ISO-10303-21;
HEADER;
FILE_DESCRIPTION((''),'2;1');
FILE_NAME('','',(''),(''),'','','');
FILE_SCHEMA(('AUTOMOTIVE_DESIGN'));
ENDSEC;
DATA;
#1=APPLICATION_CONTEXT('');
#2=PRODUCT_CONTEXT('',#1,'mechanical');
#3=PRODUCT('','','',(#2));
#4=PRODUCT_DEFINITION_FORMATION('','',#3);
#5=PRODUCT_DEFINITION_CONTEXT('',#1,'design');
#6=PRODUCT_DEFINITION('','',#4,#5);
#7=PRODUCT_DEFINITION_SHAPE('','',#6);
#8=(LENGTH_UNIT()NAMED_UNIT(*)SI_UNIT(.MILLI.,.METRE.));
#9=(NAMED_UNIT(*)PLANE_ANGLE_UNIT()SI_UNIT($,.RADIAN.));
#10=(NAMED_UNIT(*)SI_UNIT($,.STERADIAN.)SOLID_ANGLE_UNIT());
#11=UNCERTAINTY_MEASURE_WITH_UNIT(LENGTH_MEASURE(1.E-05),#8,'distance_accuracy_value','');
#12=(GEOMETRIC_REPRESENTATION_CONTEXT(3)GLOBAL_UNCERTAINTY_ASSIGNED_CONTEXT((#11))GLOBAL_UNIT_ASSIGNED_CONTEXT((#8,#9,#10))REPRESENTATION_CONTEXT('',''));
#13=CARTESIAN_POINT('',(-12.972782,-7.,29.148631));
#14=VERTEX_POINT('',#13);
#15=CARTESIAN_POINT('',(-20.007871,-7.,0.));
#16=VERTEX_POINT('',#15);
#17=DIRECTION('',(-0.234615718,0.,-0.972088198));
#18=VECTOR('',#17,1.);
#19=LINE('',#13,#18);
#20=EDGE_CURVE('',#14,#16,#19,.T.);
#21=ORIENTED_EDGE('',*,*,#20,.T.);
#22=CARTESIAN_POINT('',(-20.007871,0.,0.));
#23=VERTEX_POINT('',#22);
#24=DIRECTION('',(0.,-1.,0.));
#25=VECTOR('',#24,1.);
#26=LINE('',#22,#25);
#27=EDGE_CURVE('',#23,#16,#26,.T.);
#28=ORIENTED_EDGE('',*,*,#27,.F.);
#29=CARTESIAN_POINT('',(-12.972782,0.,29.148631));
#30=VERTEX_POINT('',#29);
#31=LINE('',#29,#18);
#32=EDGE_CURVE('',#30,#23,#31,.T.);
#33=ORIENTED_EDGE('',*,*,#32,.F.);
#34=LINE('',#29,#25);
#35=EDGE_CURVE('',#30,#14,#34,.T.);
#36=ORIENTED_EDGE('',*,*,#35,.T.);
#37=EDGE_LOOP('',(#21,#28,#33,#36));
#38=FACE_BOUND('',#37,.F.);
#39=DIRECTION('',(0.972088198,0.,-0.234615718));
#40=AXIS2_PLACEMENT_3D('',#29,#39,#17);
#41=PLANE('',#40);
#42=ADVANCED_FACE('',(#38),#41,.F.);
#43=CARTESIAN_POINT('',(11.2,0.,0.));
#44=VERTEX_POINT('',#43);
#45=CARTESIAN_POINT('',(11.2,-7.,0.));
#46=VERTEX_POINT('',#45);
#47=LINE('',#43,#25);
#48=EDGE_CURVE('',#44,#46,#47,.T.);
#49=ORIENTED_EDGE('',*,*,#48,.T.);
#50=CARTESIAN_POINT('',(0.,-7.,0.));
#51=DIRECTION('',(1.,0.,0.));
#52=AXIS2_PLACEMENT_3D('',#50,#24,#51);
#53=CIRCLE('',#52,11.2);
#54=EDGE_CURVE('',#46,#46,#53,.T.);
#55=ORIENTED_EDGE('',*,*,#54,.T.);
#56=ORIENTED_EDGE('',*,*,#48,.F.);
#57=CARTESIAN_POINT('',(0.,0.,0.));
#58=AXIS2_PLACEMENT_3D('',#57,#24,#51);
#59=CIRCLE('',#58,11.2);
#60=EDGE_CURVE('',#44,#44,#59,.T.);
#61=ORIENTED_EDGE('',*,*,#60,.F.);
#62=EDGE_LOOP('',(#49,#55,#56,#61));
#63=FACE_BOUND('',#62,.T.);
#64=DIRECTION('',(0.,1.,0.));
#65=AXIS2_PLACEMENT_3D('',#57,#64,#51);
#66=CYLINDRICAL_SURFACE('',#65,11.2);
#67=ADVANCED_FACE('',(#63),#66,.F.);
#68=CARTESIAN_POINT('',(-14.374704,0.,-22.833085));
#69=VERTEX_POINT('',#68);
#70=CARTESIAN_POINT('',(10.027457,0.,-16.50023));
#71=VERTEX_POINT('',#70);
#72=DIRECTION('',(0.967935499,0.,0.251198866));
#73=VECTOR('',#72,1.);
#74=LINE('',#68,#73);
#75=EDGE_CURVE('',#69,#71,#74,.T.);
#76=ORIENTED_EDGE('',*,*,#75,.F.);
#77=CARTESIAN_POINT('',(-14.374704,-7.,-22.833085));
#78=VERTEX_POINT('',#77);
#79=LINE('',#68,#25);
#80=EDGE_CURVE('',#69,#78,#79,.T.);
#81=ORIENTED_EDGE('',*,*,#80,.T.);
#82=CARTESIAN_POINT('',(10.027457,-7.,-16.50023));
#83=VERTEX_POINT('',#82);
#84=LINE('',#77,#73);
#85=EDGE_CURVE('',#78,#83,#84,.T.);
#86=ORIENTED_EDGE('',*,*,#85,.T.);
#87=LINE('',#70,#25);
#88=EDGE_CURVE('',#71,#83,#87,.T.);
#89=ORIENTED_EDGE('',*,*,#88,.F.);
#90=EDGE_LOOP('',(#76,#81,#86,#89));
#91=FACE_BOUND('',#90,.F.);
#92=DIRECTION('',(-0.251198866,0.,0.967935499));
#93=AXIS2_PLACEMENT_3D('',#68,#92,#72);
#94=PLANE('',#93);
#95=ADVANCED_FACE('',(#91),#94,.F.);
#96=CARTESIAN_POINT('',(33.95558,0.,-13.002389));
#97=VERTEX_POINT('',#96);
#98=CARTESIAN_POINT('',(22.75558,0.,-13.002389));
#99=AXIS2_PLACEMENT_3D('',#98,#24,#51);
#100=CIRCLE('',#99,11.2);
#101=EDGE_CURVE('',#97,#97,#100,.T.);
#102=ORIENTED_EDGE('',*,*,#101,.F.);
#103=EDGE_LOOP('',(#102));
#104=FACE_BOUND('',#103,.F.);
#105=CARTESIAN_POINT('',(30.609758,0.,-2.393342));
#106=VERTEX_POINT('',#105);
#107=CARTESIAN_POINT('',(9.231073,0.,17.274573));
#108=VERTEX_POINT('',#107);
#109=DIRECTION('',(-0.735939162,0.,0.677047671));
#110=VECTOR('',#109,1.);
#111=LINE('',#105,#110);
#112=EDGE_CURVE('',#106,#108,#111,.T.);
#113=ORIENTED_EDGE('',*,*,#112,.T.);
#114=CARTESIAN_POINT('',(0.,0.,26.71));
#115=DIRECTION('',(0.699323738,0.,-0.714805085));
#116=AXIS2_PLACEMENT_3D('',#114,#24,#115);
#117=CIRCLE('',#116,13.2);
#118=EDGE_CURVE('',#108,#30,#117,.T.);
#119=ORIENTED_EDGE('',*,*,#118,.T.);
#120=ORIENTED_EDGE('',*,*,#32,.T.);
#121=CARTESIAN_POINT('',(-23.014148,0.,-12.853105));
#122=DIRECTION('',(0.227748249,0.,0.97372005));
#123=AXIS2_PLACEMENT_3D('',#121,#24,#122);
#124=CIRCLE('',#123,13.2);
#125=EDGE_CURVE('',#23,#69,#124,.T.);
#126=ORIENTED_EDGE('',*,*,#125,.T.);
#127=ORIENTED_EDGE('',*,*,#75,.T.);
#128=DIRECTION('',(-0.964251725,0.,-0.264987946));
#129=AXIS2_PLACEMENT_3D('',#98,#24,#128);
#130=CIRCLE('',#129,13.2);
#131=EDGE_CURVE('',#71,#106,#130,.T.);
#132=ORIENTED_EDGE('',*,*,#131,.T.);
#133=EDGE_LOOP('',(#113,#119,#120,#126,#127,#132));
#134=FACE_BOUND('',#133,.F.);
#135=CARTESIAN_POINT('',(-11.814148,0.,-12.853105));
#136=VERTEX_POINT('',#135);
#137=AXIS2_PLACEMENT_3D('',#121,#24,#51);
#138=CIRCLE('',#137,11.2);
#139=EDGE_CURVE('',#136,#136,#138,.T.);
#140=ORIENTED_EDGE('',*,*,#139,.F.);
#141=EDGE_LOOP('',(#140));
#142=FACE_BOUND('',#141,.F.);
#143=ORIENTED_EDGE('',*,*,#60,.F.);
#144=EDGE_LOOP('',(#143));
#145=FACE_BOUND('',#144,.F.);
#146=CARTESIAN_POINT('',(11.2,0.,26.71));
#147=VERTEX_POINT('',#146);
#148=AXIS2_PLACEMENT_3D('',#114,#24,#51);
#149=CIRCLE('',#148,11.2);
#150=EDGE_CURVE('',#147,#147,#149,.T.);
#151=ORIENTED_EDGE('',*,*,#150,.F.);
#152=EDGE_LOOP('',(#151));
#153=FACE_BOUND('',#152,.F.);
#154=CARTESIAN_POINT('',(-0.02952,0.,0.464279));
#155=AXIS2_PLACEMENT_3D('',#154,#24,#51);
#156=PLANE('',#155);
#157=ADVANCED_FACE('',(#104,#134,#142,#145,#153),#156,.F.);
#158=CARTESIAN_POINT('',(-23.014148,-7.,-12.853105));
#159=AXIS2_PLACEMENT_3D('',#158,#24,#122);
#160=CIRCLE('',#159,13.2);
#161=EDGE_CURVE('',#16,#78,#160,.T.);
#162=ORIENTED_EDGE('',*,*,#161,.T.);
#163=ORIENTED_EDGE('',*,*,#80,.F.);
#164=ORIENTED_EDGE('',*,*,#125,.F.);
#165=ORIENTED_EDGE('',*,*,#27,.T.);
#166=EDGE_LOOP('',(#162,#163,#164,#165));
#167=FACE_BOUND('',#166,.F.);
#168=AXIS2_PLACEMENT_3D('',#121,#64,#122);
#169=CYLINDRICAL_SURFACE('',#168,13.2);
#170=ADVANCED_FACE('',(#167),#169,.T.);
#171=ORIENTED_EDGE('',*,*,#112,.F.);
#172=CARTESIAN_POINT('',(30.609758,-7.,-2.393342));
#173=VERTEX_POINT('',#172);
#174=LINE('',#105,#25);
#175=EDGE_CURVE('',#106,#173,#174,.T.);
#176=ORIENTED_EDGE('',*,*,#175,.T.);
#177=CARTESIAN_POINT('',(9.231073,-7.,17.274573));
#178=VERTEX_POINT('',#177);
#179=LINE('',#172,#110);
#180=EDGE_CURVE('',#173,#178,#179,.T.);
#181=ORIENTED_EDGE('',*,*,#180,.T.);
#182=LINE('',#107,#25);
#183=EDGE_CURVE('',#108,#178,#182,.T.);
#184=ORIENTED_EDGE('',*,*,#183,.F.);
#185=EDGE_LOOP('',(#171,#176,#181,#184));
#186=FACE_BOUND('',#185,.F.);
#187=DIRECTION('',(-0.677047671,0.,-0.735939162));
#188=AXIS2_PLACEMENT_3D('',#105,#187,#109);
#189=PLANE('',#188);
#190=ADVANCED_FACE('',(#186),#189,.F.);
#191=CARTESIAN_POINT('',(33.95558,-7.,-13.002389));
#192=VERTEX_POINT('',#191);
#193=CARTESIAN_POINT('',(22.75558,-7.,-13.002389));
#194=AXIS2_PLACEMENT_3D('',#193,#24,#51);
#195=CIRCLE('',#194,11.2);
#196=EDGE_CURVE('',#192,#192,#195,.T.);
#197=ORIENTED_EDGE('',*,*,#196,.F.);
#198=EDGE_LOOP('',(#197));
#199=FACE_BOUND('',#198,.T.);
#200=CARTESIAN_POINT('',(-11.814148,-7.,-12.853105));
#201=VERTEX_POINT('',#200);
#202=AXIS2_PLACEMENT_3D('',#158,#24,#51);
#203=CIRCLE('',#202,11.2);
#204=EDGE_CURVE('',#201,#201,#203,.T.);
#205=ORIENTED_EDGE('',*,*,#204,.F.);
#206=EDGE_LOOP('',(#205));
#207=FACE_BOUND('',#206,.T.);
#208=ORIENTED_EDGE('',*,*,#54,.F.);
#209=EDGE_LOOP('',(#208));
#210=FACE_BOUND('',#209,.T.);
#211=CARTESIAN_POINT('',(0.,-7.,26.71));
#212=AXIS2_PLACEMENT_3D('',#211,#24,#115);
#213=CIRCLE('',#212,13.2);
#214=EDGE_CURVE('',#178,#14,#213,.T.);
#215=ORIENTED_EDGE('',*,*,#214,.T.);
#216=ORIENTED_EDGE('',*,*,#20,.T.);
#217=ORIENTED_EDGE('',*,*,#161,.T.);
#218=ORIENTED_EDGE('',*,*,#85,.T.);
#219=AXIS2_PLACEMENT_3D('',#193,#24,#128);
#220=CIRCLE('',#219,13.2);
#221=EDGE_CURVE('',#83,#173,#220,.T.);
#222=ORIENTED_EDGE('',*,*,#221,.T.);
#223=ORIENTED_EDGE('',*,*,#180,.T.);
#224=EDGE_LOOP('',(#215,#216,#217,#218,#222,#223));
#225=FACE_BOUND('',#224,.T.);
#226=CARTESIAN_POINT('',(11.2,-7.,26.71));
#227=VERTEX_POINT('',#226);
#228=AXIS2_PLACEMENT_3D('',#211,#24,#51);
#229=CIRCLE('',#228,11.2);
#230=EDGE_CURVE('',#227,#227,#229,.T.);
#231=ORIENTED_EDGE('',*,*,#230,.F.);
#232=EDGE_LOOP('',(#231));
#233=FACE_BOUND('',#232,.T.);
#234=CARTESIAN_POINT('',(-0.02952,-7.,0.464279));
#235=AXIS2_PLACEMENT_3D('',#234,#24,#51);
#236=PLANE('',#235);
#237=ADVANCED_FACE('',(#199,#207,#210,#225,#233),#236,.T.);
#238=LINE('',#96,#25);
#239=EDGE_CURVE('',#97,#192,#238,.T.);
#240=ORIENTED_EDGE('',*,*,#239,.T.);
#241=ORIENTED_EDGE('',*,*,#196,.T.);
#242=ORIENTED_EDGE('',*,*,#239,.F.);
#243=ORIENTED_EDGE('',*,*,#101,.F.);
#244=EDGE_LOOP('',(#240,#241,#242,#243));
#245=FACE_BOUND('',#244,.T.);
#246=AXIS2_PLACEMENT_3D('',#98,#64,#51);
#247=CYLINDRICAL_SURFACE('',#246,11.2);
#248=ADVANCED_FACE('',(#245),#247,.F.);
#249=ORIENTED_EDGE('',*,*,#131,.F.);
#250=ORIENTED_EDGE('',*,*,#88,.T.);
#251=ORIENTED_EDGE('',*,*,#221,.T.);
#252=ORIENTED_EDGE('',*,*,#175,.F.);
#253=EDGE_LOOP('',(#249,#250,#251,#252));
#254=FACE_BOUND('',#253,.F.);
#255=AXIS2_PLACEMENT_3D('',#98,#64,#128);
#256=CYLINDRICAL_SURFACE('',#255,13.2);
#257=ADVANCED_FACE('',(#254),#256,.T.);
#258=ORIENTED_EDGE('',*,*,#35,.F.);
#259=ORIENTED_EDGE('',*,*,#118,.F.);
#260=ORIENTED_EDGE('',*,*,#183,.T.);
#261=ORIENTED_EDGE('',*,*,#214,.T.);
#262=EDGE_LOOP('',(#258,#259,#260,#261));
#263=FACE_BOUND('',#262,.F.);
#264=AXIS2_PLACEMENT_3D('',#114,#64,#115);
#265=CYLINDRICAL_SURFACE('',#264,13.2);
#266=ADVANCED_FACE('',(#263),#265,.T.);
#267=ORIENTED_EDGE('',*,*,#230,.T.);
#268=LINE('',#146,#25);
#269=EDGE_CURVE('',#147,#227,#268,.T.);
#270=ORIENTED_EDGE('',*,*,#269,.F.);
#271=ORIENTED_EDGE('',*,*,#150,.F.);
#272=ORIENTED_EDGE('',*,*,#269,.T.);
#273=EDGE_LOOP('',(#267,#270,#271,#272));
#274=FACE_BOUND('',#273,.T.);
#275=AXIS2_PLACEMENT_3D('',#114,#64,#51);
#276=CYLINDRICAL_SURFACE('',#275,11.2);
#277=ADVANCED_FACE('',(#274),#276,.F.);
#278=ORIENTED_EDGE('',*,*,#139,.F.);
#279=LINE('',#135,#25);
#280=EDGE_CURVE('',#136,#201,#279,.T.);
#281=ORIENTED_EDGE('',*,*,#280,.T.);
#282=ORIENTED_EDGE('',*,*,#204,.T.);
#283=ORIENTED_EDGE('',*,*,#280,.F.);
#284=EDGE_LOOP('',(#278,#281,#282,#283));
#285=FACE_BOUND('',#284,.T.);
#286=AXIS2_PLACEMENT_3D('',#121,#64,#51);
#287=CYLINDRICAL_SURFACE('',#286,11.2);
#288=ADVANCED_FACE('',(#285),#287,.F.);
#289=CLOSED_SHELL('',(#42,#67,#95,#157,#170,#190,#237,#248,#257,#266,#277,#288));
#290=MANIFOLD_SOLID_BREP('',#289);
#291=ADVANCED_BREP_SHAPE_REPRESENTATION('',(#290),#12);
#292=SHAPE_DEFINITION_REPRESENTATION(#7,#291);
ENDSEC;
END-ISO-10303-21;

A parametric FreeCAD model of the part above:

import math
import FreeCAD as App
import Part
import Sketcher

doc = App.newDocument("Part")
body = doc.addObject("PartDesign::Body", "Body")

# Sketch on XZ plane
sketch1 = body.newObject("Sketcher::SketchObject", "Sketch")
sketch1.AttachmentSupport = (doc.getObject("XZ_Plane"), [""])
sketch1.MapMode = "FlatFace"
sketch1.addGeometry([
    Part.LineSegment(App.Vector(31, -2, 0), App.Vector(9, 17, 0)),  # 0
    Part.ArcOfCircle(Part.Circle(App.Vector(0, 27, 0), App.Vector(0, 0, 1), 13), math.radians(-46), math.radians(169)),  # 1
    Part.LineSegment(App.Vector(-13, 29, 0), App.Vector(-20, 0, 0)),  # 2
    Part.ArcOfCircle(Part.Circle(App.Vector(-23, -13, 0), App.Vector(0, 0, 1), 13), math.radians(77), math.radians(311)),  # 3
    Part.LineSegment(App.Vector(-14, -23, 0), App.Vector(10, -17, 0)),  # 4
    Part.ArcOfCircle(Part.Circle(App.Vector(23, -13, 0), App.Vector(0, 0, 1), 13), math.radians(-165), math.radians(53)),  # 5
    Part.Circle(App.Vector(-23, -13, 0), App.Vector(0, 0, 1), 11),  # 6
    Part.Circle(App.Vector(23, -13, 0), App.Vector(0, 0, 1), 11),  # 7
    Part.Circle(App.Vector(0, 0, 0), App.Vector(0, 0, 1), 11),  # 8
    Part.Circle(App.Vector(0, 27, 0), App.Vector(0, 0, 1), 11),  # 9
], False)
sketch1.addConstraint([
    Sketcher.Constraint("Coincident", 0, 2, 1, 1),
    Sketcher.Constraint("Coincident", 1, 2, 2, 1),
    Sketcher.Constraint("Coincident", 2, 2, 3, 1),
    Sketcher.Constraint("Coincident", 3, 2, 4, 1),
    Sketcher.Constraint("Coincident", 4, 2, 5, 1),
    Sketcher.Constraint("Coincident", 5, 2, 0, 1),
    Sketcher.Constraint("Coincident", 8, 3, -1, 1),
    Sketcher.Constraint("Coincident", 6, 3, 3, 3),
    Sketcher.Constraint("Coincident", 7, 3, 5, 3),
    Sketcher.Constraint("Coincident", 9, 3, 1, 3),
    Sketcher.Constraint("Equal", 1, 3),
    Sketcher.Constraint("Equal", 3, 5),
    Sketcher.Constraint("Equal", 6, 7),
    Sketcher.Constraint("Equal", 7, 8),
    Sketcher.Constraint("Equal", 8, 9),
    Sketcher.Constraint("PointOnObject", 1, 3, -2),
    Sketcher.Constraint("PointOnObject", 2, 2, -1),
    Sketcher.Constraint("Diameter", 6, 22.4),
    Sketcher.Constraint("Radius", 1, 13.2),
    Sketcher.Constraint("DistanceY", -1, 1, 1, 3, 26.71),
    Sketcher.Constraint("DistanceX", 4, 2, 5, 2, 20.582301),
    Sketcher.Constraint("DistanceX", -1, 1, 5, 3, 22.75558),
    Sketcher.Constraint("DistanceY", 5, 3, -1, 1, 13.002389),
    Sketcher.Constraint("DistanceY", -1, 1, 1, 2, 29.148631),
    Sketcher.Constraint("DistanceX", 2, 2, -1, 1, 20.007871),
    Sketcher.Constraint("DistanceY", 4, 2, -1, 1, 16.50023),
    Sketcher.Constraint("DistanceY", 0, 2, 1, 2, 11.874058),
    Sketcher.Constraint("DistanceY", 3, 2, 6, 3, 9.97998),
    Sketcher.Constraint("DistanceX", 3, 2, 4, 2, 24.402161),
])
pad1 = body.newObject("PartDesign::Pad", "Pad")
pad1.Profile = sketch1
pad1.Length = 7

doc.recompute()
